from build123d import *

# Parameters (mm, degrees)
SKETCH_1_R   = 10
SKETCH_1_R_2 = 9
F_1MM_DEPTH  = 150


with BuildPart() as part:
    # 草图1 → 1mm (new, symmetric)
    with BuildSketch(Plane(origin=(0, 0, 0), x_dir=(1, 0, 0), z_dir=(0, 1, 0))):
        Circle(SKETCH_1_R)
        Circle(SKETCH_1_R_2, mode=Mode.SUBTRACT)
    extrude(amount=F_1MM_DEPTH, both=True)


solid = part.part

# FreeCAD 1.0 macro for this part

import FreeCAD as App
import Part
import Sketcher
Q = App.Units.Quantity

doc = App.newDocument("Part")
body = doc.addObject("PartDesign::Body", "Body")

# Sketch on XZ plane
sketch1 = doc.addObject("Sketcher::SketchObject", "Sketch")
body.addObject(sketch1)
sketch1.AttachmentSupport = (doc.XZ_Plane, [""])
sketch1.MapMode = "FlatFace"
sketch1.addGeometry([
    Part.Circle(App.Vector(0, 0, 0), App.Vector(0, 0, 1), 10),
    Part.Circle(App.Vector(0, 0, 0), App.Vector(0, 0, 1), 9),
], False)
sketch1.addConstraint([
    Sketcher.Constraint("Coincident", 0, 3, -1, 1),
    Sketcher.Constraint("Coincident", 1, 3, -1, 1),
    Sketcher.Constraint("Diameter", 0, Q("20 mm")),
    Sketcher.Constraint("Diameter", 1, Q("18 mm")),
])
pad1 = doc.addObject("PartDesign::Pad", "Pad")
body.addObject(pad1)
pad1.Profile = sketch1
pad1.Length = 300
pad1.Midplane = True

doc.recompute()
